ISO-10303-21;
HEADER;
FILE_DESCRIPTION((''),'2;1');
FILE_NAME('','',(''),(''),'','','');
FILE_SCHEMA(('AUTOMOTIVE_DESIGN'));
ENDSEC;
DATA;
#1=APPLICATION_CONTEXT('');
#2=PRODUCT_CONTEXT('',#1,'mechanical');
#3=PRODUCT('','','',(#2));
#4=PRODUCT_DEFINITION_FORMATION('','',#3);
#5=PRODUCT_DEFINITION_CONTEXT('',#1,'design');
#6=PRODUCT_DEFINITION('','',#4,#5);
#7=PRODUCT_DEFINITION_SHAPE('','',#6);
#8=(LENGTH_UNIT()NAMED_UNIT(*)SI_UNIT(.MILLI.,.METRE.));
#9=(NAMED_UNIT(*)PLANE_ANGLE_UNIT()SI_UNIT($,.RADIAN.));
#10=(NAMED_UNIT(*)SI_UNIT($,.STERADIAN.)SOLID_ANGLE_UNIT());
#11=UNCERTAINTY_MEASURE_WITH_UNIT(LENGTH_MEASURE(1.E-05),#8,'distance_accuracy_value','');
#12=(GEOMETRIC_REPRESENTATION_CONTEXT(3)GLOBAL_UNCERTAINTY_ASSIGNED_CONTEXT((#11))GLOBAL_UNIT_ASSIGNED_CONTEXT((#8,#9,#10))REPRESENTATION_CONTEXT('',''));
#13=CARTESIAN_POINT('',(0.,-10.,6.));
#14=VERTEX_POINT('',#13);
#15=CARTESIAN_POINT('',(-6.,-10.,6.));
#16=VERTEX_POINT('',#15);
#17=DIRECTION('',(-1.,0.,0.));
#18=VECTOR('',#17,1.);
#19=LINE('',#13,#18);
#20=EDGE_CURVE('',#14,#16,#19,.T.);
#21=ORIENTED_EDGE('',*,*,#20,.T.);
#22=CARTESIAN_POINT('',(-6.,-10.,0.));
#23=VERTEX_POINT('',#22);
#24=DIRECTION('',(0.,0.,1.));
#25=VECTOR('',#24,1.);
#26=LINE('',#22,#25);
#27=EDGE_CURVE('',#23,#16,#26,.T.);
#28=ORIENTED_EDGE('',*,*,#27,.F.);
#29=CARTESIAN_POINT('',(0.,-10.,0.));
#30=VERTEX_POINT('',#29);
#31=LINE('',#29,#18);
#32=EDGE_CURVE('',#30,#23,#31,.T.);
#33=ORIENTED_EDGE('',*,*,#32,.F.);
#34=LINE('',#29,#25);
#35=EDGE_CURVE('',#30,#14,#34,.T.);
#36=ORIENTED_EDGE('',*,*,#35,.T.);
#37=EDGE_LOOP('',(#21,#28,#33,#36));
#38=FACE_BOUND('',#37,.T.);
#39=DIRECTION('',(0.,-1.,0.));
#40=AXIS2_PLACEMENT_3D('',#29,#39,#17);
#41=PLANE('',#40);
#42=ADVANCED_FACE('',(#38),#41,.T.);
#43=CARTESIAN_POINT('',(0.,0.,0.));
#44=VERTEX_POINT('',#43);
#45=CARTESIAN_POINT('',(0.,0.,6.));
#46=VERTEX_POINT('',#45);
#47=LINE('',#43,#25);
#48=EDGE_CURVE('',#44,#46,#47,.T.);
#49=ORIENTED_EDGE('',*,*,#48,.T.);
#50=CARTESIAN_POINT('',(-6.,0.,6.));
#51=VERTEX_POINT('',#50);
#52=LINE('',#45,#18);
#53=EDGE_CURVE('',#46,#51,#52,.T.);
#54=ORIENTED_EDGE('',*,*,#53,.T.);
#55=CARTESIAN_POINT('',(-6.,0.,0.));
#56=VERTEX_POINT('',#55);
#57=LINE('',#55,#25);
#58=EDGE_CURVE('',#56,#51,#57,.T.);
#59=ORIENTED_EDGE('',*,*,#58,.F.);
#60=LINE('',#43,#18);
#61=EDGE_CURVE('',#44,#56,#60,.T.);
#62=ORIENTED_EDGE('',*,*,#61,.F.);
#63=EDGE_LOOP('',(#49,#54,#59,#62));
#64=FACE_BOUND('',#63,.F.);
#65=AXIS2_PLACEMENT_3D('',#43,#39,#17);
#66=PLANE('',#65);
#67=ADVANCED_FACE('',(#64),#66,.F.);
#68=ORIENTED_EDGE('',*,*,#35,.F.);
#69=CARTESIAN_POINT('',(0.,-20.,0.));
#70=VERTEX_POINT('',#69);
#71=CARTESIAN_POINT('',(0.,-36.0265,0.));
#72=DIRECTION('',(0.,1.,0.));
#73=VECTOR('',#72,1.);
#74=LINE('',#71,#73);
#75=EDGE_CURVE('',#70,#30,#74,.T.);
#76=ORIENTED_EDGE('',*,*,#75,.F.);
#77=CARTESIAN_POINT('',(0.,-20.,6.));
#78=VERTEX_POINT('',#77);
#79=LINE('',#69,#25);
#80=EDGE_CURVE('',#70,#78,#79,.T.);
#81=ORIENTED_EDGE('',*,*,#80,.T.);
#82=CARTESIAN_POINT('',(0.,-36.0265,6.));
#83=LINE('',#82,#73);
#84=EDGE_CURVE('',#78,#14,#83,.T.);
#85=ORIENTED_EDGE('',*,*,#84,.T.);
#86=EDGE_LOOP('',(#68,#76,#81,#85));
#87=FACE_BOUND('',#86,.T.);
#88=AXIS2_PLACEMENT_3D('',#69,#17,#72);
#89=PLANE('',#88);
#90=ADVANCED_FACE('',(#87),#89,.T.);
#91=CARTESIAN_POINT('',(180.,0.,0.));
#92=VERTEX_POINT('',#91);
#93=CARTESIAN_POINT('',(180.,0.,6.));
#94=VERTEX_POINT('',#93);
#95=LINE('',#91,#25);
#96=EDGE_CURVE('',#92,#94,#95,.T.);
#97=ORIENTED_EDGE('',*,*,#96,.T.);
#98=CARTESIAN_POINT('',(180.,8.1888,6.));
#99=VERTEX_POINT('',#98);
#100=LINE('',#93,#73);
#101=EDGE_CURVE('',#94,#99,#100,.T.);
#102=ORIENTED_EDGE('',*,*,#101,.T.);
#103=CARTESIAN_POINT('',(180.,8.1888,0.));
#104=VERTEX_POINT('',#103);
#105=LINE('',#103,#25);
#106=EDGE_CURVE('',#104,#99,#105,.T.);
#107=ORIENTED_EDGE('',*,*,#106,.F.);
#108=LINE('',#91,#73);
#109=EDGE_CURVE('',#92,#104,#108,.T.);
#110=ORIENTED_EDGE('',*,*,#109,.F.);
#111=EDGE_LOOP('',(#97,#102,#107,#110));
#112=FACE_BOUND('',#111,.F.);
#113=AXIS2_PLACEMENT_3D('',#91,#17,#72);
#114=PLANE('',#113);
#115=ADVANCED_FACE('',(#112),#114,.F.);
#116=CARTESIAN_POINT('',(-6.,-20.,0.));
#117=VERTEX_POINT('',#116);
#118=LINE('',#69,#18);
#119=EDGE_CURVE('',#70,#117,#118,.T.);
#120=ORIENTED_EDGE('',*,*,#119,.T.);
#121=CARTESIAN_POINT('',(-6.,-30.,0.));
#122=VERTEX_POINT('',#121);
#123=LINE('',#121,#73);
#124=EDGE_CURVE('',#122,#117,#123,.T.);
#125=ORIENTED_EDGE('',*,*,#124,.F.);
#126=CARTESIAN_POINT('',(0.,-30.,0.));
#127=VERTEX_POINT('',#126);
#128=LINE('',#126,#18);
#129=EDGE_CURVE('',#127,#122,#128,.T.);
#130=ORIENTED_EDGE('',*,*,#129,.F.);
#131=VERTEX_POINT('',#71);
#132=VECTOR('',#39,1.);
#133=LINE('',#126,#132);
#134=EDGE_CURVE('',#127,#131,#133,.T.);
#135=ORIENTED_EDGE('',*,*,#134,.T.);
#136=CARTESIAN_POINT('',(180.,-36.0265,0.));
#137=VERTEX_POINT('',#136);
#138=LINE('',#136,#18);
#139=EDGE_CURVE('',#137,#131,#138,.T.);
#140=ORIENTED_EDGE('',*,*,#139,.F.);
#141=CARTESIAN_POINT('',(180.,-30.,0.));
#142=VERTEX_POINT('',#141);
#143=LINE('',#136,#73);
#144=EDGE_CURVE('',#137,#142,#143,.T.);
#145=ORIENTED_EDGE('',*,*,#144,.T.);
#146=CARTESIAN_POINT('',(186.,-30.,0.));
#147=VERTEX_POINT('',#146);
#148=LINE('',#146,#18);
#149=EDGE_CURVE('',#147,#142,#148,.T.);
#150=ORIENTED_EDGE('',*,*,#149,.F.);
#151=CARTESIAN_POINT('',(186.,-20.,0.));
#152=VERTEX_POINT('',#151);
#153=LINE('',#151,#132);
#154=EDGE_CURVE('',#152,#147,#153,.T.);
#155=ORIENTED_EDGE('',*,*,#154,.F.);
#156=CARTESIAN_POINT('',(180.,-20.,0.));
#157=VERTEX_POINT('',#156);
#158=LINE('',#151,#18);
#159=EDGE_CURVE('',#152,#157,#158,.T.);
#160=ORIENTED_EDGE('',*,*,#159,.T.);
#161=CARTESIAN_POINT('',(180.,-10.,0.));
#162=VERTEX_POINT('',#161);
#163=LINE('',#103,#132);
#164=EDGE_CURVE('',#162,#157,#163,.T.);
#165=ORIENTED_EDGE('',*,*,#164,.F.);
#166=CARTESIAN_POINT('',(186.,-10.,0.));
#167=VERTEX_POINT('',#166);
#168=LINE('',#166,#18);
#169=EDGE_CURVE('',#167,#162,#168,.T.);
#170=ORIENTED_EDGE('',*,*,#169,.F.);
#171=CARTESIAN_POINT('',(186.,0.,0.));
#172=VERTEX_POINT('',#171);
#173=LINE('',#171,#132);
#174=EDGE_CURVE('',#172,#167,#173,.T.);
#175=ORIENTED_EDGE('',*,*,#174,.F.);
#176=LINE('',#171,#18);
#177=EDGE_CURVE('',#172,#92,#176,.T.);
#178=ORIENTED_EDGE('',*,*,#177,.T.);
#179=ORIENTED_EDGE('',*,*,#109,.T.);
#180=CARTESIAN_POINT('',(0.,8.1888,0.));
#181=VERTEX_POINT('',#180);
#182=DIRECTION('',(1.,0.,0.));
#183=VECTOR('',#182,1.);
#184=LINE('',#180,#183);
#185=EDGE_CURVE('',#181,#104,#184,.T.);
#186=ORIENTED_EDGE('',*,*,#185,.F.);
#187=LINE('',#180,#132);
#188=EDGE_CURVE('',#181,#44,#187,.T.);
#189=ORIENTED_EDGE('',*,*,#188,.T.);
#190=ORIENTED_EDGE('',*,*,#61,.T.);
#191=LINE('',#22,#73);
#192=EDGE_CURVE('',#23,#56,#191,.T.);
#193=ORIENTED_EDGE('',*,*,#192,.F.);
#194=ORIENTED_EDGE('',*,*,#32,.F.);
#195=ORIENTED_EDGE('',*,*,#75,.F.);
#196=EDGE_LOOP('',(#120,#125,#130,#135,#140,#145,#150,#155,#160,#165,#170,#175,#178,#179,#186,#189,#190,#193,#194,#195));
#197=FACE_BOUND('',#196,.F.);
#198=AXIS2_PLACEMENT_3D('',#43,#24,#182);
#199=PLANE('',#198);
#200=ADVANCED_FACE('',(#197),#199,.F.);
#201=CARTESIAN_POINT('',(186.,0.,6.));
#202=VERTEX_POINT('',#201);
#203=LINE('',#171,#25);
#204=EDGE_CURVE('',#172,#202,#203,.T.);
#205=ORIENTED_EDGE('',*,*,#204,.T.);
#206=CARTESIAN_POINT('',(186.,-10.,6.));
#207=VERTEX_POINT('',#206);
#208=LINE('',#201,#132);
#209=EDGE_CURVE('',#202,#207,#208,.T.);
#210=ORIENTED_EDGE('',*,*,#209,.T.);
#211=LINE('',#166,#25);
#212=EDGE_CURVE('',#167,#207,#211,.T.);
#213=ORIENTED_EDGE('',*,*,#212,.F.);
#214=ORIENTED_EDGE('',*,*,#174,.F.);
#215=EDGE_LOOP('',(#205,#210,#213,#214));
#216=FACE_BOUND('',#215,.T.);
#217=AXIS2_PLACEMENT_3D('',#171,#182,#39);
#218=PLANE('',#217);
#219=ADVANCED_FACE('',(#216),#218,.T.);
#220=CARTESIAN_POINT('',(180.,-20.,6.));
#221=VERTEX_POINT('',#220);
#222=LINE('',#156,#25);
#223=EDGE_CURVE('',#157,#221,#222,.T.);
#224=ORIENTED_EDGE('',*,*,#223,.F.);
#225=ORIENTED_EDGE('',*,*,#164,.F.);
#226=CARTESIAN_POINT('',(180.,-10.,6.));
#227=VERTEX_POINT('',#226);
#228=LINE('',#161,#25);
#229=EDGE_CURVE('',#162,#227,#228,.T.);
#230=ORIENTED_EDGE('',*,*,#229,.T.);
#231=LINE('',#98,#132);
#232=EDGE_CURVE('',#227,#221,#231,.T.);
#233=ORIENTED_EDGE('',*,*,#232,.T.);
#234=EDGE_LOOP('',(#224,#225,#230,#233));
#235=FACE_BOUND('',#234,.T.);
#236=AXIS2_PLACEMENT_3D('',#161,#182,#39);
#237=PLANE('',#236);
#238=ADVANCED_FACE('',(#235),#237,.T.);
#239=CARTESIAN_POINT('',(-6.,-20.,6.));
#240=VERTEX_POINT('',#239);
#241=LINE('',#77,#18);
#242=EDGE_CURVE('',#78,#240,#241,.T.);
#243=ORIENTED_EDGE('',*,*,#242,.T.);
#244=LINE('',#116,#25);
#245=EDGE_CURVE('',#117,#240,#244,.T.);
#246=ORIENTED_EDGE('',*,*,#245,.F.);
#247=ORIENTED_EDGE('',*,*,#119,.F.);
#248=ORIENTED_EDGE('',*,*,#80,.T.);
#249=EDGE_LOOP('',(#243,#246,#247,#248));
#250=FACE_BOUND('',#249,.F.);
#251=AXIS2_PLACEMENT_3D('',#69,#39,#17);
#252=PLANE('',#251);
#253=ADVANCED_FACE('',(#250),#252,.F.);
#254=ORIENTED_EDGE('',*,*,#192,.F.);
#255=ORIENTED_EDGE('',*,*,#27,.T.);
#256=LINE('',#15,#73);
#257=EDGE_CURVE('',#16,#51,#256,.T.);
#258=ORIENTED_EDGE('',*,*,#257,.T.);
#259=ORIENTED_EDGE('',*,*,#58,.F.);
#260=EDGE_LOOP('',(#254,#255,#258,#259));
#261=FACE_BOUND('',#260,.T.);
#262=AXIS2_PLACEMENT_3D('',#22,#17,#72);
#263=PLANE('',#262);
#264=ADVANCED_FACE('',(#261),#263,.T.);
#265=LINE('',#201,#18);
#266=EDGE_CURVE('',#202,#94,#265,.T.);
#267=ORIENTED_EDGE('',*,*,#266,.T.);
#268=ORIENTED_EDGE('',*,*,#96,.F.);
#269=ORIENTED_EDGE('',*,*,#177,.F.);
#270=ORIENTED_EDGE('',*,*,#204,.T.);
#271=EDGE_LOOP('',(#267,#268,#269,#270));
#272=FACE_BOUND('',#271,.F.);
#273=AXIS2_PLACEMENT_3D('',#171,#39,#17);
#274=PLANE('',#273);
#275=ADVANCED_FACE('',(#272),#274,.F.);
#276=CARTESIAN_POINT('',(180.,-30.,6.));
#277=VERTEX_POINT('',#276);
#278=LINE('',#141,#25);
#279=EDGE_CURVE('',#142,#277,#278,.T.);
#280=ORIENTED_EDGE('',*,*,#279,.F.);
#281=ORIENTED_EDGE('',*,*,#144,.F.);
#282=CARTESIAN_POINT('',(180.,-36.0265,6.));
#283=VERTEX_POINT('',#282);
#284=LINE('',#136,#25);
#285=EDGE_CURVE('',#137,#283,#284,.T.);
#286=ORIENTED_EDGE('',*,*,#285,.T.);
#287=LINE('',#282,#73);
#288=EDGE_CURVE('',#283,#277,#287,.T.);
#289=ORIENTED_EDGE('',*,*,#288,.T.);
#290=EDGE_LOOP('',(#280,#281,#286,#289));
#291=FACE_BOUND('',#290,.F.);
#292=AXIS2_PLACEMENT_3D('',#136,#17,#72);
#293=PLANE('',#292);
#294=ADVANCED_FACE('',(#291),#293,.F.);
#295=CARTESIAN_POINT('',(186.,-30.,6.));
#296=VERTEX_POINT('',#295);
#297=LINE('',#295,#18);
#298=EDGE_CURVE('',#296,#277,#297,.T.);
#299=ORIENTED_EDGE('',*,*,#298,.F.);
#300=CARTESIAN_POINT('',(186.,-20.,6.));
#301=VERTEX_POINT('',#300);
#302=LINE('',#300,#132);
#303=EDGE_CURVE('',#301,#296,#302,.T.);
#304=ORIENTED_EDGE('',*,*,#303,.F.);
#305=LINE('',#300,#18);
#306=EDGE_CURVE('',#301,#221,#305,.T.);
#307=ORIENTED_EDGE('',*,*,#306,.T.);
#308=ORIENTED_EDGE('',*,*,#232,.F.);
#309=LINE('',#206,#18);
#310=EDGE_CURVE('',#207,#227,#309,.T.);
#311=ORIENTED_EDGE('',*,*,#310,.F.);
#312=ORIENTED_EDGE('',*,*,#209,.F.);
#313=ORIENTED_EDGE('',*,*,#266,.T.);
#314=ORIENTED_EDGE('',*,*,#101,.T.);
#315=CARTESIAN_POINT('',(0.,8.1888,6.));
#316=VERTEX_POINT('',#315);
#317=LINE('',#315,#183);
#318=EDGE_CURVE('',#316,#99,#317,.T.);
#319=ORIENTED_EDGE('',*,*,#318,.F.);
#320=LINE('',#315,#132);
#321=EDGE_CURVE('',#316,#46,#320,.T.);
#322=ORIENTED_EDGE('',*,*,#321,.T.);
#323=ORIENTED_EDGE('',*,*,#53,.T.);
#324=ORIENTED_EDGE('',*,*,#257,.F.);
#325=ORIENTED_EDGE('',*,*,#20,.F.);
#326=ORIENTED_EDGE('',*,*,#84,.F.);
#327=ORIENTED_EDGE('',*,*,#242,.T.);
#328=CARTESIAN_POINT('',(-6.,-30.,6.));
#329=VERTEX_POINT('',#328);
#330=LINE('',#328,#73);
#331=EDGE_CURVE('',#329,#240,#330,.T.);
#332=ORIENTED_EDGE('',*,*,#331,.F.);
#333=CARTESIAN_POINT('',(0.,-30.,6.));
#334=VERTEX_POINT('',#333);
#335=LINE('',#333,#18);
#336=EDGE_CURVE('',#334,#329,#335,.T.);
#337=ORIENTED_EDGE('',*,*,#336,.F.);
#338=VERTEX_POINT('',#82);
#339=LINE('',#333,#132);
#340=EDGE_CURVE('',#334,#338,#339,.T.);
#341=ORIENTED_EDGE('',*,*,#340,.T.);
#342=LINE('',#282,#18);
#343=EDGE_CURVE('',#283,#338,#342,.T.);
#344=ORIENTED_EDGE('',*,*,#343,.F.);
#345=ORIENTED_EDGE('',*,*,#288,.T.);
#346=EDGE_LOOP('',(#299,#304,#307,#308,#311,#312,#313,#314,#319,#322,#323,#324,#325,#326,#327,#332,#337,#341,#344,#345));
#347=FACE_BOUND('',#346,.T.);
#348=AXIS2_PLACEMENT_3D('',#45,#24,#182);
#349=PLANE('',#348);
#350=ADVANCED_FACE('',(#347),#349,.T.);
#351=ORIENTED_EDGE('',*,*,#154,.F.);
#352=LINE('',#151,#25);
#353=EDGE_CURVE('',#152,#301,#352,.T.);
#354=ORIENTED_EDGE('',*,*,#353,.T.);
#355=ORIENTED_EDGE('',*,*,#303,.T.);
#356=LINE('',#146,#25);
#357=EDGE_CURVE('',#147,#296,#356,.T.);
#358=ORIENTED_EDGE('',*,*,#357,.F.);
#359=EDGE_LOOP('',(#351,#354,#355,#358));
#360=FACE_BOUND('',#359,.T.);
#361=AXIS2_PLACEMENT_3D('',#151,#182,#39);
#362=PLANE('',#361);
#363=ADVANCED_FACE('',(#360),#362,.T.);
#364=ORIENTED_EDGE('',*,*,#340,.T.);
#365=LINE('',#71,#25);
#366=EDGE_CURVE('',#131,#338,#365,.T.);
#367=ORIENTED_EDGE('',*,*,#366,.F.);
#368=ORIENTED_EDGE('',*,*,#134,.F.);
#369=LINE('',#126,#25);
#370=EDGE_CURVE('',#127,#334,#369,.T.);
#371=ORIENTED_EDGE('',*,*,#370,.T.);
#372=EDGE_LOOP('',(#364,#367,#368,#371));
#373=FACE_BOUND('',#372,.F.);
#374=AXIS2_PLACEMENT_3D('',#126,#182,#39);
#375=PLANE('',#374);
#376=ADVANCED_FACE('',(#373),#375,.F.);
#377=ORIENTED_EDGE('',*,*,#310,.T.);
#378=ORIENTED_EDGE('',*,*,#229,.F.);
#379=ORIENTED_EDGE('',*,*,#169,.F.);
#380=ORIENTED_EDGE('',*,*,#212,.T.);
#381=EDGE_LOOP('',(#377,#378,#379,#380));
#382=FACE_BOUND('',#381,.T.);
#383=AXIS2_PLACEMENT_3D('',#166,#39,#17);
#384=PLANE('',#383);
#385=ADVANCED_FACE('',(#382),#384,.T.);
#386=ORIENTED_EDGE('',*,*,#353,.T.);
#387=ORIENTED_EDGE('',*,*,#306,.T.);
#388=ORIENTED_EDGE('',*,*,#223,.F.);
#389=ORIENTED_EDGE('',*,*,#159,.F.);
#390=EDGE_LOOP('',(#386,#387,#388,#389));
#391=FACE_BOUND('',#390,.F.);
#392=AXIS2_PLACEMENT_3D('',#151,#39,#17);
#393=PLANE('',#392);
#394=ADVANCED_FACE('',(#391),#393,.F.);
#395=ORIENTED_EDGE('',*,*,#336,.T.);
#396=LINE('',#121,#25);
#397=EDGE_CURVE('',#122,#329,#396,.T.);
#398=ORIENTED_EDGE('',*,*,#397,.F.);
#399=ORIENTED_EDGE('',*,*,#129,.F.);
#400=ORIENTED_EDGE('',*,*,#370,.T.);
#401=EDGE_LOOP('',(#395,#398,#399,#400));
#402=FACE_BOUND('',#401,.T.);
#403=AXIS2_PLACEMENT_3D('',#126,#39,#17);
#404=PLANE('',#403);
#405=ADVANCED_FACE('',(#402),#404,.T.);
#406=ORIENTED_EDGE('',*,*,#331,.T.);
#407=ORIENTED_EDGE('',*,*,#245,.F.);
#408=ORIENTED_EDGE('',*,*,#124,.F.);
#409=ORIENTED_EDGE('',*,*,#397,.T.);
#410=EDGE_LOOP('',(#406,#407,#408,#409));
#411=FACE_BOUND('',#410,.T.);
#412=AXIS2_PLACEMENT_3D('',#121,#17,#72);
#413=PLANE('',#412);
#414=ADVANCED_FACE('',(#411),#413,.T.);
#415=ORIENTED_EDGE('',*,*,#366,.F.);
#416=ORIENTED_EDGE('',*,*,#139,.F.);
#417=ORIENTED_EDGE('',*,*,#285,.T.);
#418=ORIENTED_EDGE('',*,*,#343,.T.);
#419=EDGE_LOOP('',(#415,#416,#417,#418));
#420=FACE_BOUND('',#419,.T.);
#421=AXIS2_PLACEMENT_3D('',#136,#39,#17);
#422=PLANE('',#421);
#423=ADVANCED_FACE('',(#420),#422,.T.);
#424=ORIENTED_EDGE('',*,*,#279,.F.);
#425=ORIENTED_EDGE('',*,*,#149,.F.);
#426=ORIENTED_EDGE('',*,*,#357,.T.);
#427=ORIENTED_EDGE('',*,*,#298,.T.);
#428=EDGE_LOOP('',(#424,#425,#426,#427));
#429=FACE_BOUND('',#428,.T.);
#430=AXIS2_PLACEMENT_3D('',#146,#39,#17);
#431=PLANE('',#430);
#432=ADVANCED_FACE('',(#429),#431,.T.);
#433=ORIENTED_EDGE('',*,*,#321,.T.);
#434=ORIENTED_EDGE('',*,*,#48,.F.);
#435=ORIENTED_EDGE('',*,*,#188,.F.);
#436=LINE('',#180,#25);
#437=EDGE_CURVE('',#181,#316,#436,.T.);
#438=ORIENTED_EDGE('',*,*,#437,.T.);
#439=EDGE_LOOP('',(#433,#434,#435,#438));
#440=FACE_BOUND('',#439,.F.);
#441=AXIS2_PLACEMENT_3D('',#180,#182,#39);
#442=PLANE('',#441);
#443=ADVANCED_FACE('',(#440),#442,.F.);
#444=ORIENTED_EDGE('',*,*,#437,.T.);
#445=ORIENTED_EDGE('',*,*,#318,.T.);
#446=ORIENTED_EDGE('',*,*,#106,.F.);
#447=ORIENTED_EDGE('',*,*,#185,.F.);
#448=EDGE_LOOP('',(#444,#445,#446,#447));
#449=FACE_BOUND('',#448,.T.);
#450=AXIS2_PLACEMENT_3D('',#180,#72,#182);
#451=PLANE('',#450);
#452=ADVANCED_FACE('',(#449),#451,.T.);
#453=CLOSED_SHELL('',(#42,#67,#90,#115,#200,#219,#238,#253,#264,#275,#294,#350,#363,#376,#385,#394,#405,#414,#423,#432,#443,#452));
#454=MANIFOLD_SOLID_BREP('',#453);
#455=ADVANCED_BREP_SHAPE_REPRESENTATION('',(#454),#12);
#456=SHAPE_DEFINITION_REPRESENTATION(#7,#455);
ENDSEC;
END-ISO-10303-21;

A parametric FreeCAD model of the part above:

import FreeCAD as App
import Part
import Sketcher

V = App.Vector
Q = App.Units.Quantity

doc = App.newDocument("Part")
body = doc.addObject("PartDesign::Body", "Body")

sketch1 = body.newObject("Sketcher::SketchObject", "Sketch")
sketch1.AttachmentSupport = (doc.getObject("XY_Plane"), [""])
sketch1.MapMode = "FlatFace"
sketch1.addGeometry([
    Part.LineSegment(V(0, 8, 0), V(0, 0, 0)),
    Part.LineSegment(V(0, 0, 0), V(-6, 0, 0)),
    Part.LineSegment(V(-6, 0, 0), V(-6, -10, 0)),
    Part.LineSegment(V(-6, -10, 0), V(0, -10, 0)),
    Part.LineSegment(V(0, -10, 0), V(0, -20, 0)),
    Part.LineSegment(V(0, -20, 0), V(-6, -20, 0)),
    Part.LineSegment(V(-6, -20, 0), V(-6, -30, 0)),
    Part.LineSegment(V(-6, -30, 0), V(0, -30, 0)),
    Part.LineSegment(V(0, -30, 0), V(0, -36, 0)),
    Part.LineSegment(V(0, -36, 0), V(180, -36, 0)),
    Part.LineSegment(V(180, -36, 0), V(180, -30, 0)),
    Part.LineSegment(V(180, -30, 0), V(186, -30, 0)),
    Part.LineSegment(V(186, -30, 0), V(186, -20, 0)),
    Part.LineSegment(V(186, -20, 0), V(180, -20, 0)),
    Part.LineSegment(V(180, -20, 0), V(180, -10, 0)),
    Part.LineSegment(V(180, -10, 0), V(186, -10, 0)),
    Part.LineSegment(V(186, -10, 0), V(186, 0, 0)),
    Part.LineSegment(V(186, 0, 0), V(180, 0, 0)),
    Part.LineSegment(V(180, 0, 0), V(180, 8, 0)),
    Part.LineSegment(V(180, 8, 0), V(0, 8, 0)),
], False)
sketch1.addConstraint([
    Sketcher.Constraint("Coincident", 0, 2, 1, 1),
    Sketcher.Constraint("Coincident", 1, 2, 2, 1),
    Sketcher.Constraint("Coincident", 2, 2, 3, 1),
    Sketcher.Constraint("Coincident", 3, 2, 4, 1),
    Sketcher.Constraint("Coincident", 4, 2, 5, 1),
    Sketcher.Constraint("Coincident", 5, 2, 6, 1),
    Sketcher.Constraint("Coincident", 6, 2, 7, 1),
    Sketcher.Constraint("Coincident", 7, 2, 8, 1),
    Sketcher.Constraint("Coincident", 8, 2, 9, 1),
    Sketcher.Constraint("Coincident", 9, 2, 10, 1),
    Sketcher.Constraint("Coincident", 10, 2, 11, 1),
    Sketcher.Constraint("Coincident", 11, 2, 12, 1),
    Sketcher.Constraint("Coincident", 12, 2, 13, 1),
    Sketcher.Constraint("Coincident", 13, 2, 14, 1),
    Sketcher.Constraint("Coincident", 14, 2, 15, 1),
    Sketcher.Constraint("Coincident", 15, 2, 16, 1),
    Sketcher.Constraint("Coincident", 16, 2, 17, 1),
    Sketcher.Constraint("Coincident", 17, 2, 18, 1),
    Sketcher.Constraint("Coincident", 18, 2, 19, 1),
    Sketcher.Constraint("Coincident", 19, 2, 0, 1),
    Sketcher.Constraint("Vertical", 0),
    Sketcher.Constraint("Horizontal", 1),
    Sketcher.Constraint("Vertical", 2),
    Sketcher.Constraint("Horizontal", 3),
    Sketcher.Constraint("Vertical", 4),
    Sketcher.Constraint("Horizontal", 5),
    Sketcher.Constraint("Vertical", 6),
    Sketcher.Constraint("Horizontal", 7),
    Sketcher.Constraint("Vertical", 8),
    Sketcher.Constraint("Horizontal", 9),
    Sketcher.Constraint("Vertical", 10),
    Sketcher.Constraint("Horizontal", 11),
    Sketcher.Constraint("Vertical", 12),
    Sketcher.Constraint("Horizontal", 13),
    Sketcher.Constraint("Vertical", 14),
    Sketcher.Constraint("Horizontal", 15),
    Sketcher.Constraint("Vertical", 16),
    Sketcher.Constraint("Horizontal", 17),
    Sketcher.Constraint("Vertical", 18),
    Sketcher.Constraint("Horizontal", 19),
    Sketcher.Constraint("Coincident", 0, 2, -1, 1),
    Sketcher.Constraint("PointOnObject", 3, 2, -2),
    Sketcher.Constraint("PointOnObject", 7, 2, -2),
    Sketcher.Constraint("PointOnObject", 16, 2, -1),
    Sketcher.Constraint("Horizontal", 7, 2, 10, 2),
    Sketcher.Constraint("Horizontal", 5, 2, 12, 2),
    Sketcher.Constraint("Horizontal", 3, 2, 14, 2),
    Sketcher.Constraint("Vertical", 2, 2, 5, 2),
    Sketcher.Constraint("Vertical", 10, 2, 13, 2),
    Sketcher.Constraint("Vertical", 12, 2, 15, 2),
    Sketcher.Constraint("Vertical", 14, 2, 17, 2),
    Sketcher.Constraint("Equal", 7, 11),
    Sketcher.Constraint("Equal", 2, 4),
    Sketcher.Constraint("Equal", 4, 6),
    Sketcher.Constraint("DistanceX", 1, 2, 1, 1, Q("6 mm")),
    Sketcher.Constraint("DistanceX", 9, 1, 9, 2, Q("180 mm")),
    Sketcher.Constraint("DistanceY", 2, 2, 2, 1, Q("10 mm")),
    Sketcher.Constraint("DistanceY", 0, 2, 0, 1, Q("8.1888 mm")),
    Sketcher.Constraint("DistanceY", 8, 2, 8, 1, Q("6.0265 mm")),
])
pad1 = body.newObject("PartDesign::Pad", "Pad")
pad1.Profile = sketch1
pad1.Length = 6

doc.recompute()
